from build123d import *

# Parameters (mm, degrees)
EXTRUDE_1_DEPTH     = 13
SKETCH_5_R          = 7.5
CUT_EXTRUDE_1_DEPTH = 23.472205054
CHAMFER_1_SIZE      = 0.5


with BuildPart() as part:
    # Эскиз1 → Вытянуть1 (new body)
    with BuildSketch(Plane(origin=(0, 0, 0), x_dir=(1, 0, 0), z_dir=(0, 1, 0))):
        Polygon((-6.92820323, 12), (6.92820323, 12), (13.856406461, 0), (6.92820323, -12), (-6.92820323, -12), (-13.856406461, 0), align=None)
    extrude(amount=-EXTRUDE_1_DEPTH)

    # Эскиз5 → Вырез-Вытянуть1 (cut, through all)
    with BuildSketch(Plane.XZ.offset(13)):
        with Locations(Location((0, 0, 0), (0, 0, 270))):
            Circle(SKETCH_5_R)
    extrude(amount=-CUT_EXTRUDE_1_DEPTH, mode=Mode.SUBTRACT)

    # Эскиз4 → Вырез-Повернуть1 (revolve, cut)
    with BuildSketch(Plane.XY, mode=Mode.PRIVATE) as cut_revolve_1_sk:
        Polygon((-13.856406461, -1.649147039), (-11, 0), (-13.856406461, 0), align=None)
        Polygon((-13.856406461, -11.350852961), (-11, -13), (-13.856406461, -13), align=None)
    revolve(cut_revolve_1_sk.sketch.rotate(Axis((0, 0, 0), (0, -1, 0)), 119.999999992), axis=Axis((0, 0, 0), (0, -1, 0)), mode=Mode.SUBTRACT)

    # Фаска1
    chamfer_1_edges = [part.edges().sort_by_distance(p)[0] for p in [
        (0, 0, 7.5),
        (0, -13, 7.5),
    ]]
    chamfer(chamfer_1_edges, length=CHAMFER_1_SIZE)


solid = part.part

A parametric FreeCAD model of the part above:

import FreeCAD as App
import Part
import Sketcher
Q = App.Units.Quantity


def edges_at(feature, points):
    """Names of the edges that pass closest to the given points."""
    edges = feature.Shape.Edges
    near = lambda p: min(range(len(edges)), key=lambda i: edges[i].distToShape(Part.Vertex(*p))[0])
    return sorted({f"Edge{near(p) + 1}" for p in points})


def add_polygon(sketch, points):
    """Adds a closed chain of lines whose ends are joined by coincident constraints."""
    first, n = sketch.GeometryCount, len(points)
    for a, b in zip(points, points[1:] + points[:1]):
        sketch.addGeometry(Part.LineSegment(App.Vector(*a, 0), App.Vector(*b, 0)), False)
    for i in range(n):
        sketch.addConstraint(Sketcher.Constraint("Coincident", first + i, 2, first + (i + 1) % n, 1))

doc = App.newDocument("Part")
body = doc.addObject("PartDesign::Body", "Body")

# Sketch on XZ plane
sketch1 = body.newObject("Sketcher::SketchObject", "Sketch")
sketch1.AttachmentSupport = (doc.getObject("XZ_Plane"), [""])
sketch1.MapMode = "FlatFace"
add_polygon(sketch1, [(7, -12), (-7, -12), (-14, 0), (-7, 12), (7, 12), (14, 0)])  # lines 0-5
sketch1.addConstraint(Sketcher.Constraint("Horizontal", 0))
sketch1.addConstraint(Sketcher.Constraint("Horizontal", 3))
sketch1.addConstraint(Sketcher.Constraint("Symmetric", 0, 2, 3, 2, -1, 1))
sketch1.addConstraint(Sketcher.Constraint("Symmetric", 1, 2, 4, 2, -1, 1))
sketch1.addConstraint(Sketcher.Constraint("PointOnObject", 1, 2, -1))
sketch1.addConstraint(Sketcher.Constraint("Parallel", 2, 5))
sketch1.addConstraint(Sketcher.Constraint("Vertical", 0, 2, 2, 2))
sketch1.addConstraint(Sketcher.Constraint("Angle", 1, Q("120 deg")))
sketch1.addConstraint(Sketcher.Constraint("DistanceY", 0, 2, -1, 1, 12.0))
sketch1.addConstraint(Sketcher.Constraint("DistanceX", 0, 2, 0, 1, 13.856406))
pad1 = body.newObject("PartDesign::Pad", "Pad")
pad1.Profile = sketch1
pad1.Length = 13

# Sketch on XZ plane
sketch2 = body.newObject("Sketcher::SketchObject", "Sketch001")
sketch2.AttachmentSupport = (doc.getObject("XZ_Plane"), [""])
sketch2.MapMode = "FlatFace"
sketch2.AttachmentOffset = App.Placement(App.Vector(0, 0, 13), App.Rotation())
sketch2.addGeometry(Part.Circle(App.Vector(0, 0, 0), App.Vector(0, 0, 1), 8), False)
sketch2.addConstraint(Sketcher.Constraint("Coincident", 0, 3, -1, 1))
sketch2.addConstraint(Sketcher.Constraint("Diameter", 0, 15.0))
pocket1 = body.newObject("PartDesign::Pocket", "Pocket")
pocket1.Profile = sketch2
pocket1.Type = "ThroughAll"

# Sketch on XY plane
sketch3 = body.newObject("Sketcher::SketchObject", "Sketch002")
sketch3.AttachmentSupport = (doc.getObject("XY_Plane"), [""])
sketch3.MapMode = "FlatFace"
add_polygon(sketch3, [(-13.9, -1.6), (-11, 0), (-13.9, 0)])  # lines 0-2
add_polygon(sketch3, [(-11, -13), (-13.9, -11.4), (-13.9, -13)])  # lines 3-5
sketch3.addConstraint(Sketcher.Constraint("Horizontal", 1))
sketch3.addConstraint(Sketcher.Constraint("Vertical", 2))
sketch3.addConstraint(Sketcher.Constraint("Vertical", 4))
sketch3.addConstraint(Sketcher.Constraint("Horizontal", 5))
sketch3.addConstraint(Sketcher.Constraint("PointOnObject", 0, 2, -1))
sketch3.addConstraint(Sketcher.Constraint("Vertical", 2, 2, 3, 2))
sketch3.addConstraint(Sketcher.Constraint("Vertical", 0, 2, 5, 2))
sketch3.addConstraint(Sketcher.Constraint("Equal", 2, 4))
sketch3.addConstraint(Sketcher.Constraint("Angle", 0, Q("30 deg")))
sketch3.addConstraint(Sketcher.Constraint("DistanceX", 0, 2, -1, 1, 11.0))
sketch3.addConstraint(Sketcher.Constraint("DistanceY", 4, 2, -1, 1, 13.0))
sketch3.addConstraint(Sketcher.Constraint("DistanceX", 1, 2, 1, 1, 2.856406))
groove = body.newObject("PartDesign::Groove", "Groove")
groove.Profile = sketch3
groove.ReferenceAxis = (sketch3, ["V_Axis"])
groove.Angle = 360
doc.recompute()

chamfer = body.newObject("PartDesign::Chamfer", "Chamfer")
chamfer.Base = (groove, edges_at(groove, [(0, 0, 7.5), (0, -13, 7.5)]))
chamfer.Size = 0.5

doc.recompute()
